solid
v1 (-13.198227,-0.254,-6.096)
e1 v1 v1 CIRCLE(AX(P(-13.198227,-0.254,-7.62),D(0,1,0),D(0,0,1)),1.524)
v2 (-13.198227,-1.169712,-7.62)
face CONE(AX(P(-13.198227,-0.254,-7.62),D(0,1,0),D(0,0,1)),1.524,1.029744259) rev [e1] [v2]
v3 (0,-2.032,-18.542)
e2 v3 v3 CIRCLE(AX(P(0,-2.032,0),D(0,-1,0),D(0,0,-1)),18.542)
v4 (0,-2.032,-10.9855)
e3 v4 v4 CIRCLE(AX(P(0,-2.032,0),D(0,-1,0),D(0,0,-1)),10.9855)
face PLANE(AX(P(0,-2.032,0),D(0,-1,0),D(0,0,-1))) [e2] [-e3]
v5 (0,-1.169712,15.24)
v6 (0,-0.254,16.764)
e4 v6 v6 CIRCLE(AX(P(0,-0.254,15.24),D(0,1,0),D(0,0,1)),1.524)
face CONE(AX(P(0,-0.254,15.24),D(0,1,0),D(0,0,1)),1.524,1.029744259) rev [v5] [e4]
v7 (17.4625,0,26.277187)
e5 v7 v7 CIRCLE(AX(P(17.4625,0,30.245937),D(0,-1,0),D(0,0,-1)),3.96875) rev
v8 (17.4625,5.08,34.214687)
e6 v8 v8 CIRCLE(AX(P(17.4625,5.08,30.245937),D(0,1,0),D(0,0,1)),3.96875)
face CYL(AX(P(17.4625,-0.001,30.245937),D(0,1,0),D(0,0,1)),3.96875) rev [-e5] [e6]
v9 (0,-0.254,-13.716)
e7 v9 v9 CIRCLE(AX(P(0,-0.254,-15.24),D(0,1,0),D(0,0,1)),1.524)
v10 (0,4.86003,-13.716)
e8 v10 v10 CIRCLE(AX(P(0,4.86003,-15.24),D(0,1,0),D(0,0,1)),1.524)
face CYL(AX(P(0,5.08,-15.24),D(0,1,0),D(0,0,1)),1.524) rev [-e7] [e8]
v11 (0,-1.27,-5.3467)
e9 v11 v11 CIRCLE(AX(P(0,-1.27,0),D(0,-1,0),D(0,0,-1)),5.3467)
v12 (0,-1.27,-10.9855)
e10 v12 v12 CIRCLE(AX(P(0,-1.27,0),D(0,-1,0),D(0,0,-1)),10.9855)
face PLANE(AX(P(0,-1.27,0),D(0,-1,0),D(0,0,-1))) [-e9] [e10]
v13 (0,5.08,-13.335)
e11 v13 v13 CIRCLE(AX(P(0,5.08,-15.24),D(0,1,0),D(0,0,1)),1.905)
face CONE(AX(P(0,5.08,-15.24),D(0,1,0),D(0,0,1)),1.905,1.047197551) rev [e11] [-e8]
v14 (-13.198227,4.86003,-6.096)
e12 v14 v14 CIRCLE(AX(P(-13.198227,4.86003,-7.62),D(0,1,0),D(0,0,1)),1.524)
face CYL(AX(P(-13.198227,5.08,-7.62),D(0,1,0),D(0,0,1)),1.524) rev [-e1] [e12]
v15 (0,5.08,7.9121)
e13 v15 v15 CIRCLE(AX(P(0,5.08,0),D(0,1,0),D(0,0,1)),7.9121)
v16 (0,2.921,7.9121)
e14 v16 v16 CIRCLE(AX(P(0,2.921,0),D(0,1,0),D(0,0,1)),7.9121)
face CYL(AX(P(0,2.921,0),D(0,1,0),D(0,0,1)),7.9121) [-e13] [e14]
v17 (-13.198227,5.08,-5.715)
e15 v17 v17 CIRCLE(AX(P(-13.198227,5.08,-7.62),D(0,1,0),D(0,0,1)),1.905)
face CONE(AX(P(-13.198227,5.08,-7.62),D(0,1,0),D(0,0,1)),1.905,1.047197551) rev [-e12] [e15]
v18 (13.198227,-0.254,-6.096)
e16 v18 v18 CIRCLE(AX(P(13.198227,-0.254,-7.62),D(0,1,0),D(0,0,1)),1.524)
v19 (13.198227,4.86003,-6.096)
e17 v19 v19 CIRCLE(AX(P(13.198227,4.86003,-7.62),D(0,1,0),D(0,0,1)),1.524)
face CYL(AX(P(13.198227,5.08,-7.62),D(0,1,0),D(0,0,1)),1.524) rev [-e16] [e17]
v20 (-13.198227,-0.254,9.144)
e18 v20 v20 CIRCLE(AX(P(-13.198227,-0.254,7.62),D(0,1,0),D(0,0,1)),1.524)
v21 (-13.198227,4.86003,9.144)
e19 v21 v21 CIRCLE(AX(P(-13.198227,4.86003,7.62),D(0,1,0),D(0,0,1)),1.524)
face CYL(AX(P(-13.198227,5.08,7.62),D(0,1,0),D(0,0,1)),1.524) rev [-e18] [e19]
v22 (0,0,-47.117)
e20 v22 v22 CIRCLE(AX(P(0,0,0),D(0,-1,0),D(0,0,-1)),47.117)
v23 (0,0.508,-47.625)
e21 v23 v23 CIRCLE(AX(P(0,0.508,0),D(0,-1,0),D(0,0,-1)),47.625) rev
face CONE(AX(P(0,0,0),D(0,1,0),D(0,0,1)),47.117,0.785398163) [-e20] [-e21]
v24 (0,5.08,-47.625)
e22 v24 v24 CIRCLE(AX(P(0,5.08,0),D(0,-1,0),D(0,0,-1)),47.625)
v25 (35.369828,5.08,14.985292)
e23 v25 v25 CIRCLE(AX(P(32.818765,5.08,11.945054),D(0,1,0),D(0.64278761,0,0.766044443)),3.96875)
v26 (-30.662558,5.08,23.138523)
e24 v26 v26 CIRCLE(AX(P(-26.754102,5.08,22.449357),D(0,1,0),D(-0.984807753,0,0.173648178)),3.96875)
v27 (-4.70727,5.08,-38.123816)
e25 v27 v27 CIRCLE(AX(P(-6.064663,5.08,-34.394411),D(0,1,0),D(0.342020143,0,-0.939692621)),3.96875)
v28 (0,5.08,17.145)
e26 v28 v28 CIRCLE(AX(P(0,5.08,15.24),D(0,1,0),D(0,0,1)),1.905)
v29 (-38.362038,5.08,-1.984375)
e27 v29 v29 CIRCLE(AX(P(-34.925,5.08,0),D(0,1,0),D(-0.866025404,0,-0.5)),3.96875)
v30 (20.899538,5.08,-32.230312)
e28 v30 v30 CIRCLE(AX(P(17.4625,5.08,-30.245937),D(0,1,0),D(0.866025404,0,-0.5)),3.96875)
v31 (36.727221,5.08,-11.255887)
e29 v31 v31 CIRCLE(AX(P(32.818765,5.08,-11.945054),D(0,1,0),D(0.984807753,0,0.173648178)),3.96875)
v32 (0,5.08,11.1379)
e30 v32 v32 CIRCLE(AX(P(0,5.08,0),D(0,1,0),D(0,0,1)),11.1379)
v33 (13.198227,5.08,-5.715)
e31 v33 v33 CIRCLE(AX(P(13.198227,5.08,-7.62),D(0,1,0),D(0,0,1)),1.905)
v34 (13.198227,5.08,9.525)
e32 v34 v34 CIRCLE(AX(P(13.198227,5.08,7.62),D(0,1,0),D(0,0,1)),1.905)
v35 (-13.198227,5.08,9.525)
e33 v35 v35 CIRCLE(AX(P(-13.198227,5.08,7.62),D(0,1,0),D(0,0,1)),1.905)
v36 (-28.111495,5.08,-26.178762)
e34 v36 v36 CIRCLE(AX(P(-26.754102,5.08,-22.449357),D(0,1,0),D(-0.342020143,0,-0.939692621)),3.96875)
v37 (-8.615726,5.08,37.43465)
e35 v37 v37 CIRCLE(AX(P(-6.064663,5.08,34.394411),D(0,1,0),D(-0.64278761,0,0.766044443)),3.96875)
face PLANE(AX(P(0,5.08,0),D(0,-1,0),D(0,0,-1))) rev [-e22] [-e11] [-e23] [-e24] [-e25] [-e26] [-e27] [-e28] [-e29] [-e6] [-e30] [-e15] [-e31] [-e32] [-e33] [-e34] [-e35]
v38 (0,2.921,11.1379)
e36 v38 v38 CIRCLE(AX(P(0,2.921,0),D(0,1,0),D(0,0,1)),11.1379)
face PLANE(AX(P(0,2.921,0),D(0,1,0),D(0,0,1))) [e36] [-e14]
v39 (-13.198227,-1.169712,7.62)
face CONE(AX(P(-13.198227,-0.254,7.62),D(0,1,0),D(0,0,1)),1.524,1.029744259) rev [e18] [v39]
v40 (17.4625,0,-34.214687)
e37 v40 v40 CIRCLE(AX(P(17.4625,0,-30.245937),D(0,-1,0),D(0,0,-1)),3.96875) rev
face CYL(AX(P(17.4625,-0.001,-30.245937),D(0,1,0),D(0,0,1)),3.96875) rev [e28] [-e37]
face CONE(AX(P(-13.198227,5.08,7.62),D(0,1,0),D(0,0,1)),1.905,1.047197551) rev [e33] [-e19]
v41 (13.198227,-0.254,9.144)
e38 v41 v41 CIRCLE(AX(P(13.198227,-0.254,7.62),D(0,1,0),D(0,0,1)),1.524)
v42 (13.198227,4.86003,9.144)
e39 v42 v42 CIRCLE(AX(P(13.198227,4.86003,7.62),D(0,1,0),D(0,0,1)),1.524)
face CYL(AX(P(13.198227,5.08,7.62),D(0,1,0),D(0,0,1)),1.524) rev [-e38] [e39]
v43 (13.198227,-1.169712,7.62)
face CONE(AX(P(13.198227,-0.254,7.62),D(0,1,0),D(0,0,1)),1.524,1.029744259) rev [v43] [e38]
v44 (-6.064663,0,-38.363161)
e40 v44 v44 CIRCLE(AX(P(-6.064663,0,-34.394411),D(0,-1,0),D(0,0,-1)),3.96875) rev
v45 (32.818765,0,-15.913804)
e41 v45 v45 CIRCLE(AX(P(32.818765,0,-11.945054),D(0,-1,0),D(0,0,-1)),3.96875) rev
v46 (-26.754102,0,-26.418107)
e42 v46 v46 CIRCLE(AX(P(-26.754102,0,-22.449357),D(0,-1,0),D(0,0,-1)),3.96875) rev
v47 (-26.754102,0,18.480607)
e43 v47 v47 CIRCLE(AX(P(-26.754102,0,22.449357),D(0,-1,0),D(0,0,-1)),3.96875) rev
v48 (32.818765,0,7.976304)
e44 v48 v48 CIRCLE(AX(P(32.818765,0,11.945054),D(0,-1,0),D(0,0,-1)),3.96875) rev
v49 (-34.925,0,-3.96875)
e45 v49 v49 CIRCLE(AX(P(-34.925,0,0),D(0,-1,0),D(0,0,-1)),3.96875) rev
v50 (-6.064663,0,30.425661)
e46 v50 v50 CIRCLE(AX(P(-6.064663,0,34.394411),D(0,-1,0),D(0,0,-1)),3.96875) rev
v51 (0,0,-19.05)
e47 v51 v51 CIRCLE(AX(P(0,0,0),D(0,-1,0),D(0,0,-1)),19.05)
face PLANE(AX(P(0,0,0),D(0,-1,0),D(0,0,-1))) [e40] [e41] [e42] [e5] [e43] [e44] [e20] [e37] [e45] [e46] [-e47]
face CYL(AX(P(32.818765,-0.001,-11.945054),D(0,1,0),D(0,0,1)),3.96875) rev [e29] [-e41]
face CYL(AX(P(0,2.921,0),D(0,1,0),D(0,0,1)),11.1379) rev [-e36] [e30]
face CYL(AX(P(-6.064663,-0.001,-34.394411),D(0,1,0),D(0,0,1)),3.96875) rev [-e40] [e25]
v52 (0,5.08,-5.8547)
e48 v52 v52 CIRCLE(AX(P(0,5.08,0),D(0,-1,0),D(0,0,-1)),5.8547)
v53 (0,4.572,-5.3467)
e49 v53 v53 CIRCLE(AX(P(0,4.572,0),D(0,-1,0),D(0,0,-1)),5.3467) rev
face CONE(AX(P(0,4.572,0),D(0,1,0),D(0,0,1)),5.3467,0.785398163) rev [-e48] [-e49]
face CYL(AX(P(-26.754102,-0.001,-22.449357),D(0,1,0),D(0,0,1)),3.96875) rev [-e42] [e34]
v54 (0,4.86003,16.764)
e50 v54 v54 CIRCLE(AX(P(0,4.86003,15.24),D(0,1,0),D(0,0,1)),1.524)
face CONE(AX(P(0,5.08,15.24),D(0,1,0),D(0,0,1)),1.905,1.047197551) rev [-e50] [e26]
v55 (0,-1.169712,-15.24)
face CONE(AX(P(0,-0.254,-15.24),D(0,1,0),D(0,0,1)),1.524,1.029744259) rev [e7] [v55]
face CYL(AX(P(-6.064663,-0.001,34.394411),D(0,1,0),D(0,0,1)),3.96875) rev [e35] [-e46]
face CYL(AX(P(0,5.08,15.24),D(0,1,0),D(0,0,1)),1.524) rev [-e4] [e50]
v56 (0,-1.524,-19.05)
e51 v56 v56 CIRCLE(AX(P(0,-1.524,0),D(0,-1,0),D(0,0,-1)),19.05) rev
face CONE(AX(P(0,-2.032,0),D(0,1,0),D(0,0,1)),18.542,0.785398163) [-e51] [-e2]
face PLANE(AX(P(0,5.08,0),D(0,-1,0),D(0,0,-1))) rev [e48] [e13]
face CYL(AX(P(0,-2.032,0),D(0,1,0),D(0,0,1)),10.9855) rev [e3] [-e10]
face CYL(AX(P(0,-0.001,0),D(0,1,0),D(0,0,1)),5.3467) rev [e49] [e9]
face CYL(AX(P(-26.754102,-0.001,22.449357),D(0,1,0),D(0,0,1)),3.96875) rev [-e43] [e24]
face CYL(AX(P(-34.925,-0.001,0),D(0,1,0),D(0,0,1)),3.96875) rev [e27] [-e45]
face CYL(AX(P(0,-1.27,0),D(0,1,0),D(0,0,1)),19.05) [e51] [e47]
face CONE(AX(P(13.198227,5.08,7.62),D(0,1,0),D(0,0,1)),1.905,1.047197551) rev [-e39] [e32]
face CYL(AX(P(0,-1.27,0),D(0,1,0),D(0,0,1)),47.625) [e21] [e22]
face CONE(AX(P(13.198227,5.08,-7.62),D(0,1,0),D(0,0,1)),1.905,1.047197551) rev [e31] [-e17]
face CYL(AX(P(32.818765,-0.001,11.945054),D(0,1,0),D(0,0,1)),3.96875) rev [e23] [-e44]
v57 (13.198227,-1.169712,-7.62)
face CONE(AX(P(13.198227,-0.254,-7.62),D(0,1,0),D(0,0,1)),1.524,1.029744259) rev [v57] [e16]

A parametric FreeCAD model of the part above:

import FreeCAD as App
import Part
import Sketcher
from FreeCAD import Vector
Q = App.Units.Quantity


def edges_at(feature, points):
    """Names of the edges that pass closest to the given points."""
    edges = feature.Shape.Edges
    near = lambda p: min(range(len(edges)), key=lambda i: edges[i].distToShape(Part.Vertex(*p))[0])
    return sorted({f"Edge{near(p) + 1}" for p in points})


def add_polygon(sketch, points):
    """Adds a closed chain of lines whose ends are joined by coincident constraints."""
    first, n = sketch.GeometryCount, len(points)
    for a, b in zip(points, points[1:] + points[:1]):
        sketch.addGeometry(Part.LineSegment(App.Vector(*a, 0), App.Vector(*b, 0)), False)
    for i in range(n):
        sketch.addConstraint(Sketcher.Constraint("Coincident", first + i, 2, first + (i + 1) % n, 1))

doc = App.newDocument("Part")
body = doc.addObject("PartDesign::Body", "Body")

sketch1 = body.newObject("Sketcher::SketchObject", "Sketch")
sketch1.AttachmentSupport = (doc.getObject("XZ_Plane"), [""])
sketch1.MapMode = "FlatFace"
add_polygon(sketch1, [(-64, -64), (-64, 64), (64, 64), (64, -64)])
sketch1.addConstraint([
    Sketcher.Constraint("Vertical", 0),
    Sketcher.Constraint("Horizontal", 1),
    Sketcher.Constraint("Vertical", 2),
    Sketcher.Constraint("Horizontal", 3),
    Sketcher.Constraint("Symmetric", 0, 2, 2, 2, -1, 1),
    Sketcher.Constraint("Equal", 3, 0),
    Sketcher.Constraint("DistanceX", 1, 1, 1, 2, Q("5 in")),
])
pad1 = body.newObject("PartDesign::Pad", "Pad")
pad1.Profile = sketch1
pad1.Length = Q("0.2 in")
pad1.Reversed = True

sketch2 = body.newObject("Sketcher::SketchObject", "Sketch001")
sketch2.AttachmentSupport = (doc.getObject("XZ_Plane"), [""])
sketch2.MapMode = "FlatFace"
sketch2.AttachmentOffset = App.Placement(Vector(0, 0, -0.2 * 25.4), App.Rotation())
sketch2.addGeometry(Part.Circle(Vector(0, 0, 0), Vector(0, 0, 1), 5), False)
sketch2.addConstraint([
    Sketcher.Constraint("Coincident", 0, 3, -1, 1),
    Sketcher.Constraint("Diameter", 0, Q("0.421 in")),
])
pocket1 = body.newObject("PartDesign::Pocket", "Pocket")
pocket1.Profile = sketch2
pocket1.Type = "UpToFirst"
pocket1.Reversed = True

sketch3 = body.newObject("Sketcher::SketchObject", "Sketch002")
sketch3.AttachmentSupport = (doc.getObject("XZ_Plane"), [""])
sketch3.MapMode = "FlatFace"
sketch3.AttachmentOffset = App.Placement(Vector(0, 0, -0.2 * 25.4), App.Rotation())
sketch3.addGeometry([
    Part.Circle(Vector(0, 0, 0), Vector(0, 0, 1), 11),
    Part.Circle(Vector(0, 0, 0), Vector(0, 0, 1), 8),
], False)
sketch3.addConstraint([
    Sketcher.Constraint("Coincident", 0, 3, -1, 1),
    Sketcher.Constraint("Coincident", 1, 3, -1, 1),
    Sketcher.Constraint("Diameter", 0, Q("0.877 in")),
    Sketcher.Constraint("Diameter", 1, Q("0.623 in")),
])
pocket2 = body.newObject("PartDesign::Pocket", "Pocket001")
pocket2.Profile = sketch3
pocket2.Length = Q("0.085 in")
pocket2.Reversed = True

sketch4 = body.newObject("Sketcher::SketchObject", "Sketch003")
sketch4.AttachmentSupport = (doc.getObject("XZ_Plane"), [""])
sketch4.MapMode = "FlatFace"
sketch4.AttachmentOffset = App.Placement(Vector(0, 0, -0.2 * 25.4), App.Rotation())
sketch4.addGeometry(Part.Circle(Vector(17.5, 30.2, 0), Vector(0, 0, 1), 4), False)
sketch4.addConstraint([
    Sketcher.Constraint("Diameter", 0, Q("0.3125 in")),
    Sketcher.Constraint("DistanceX", -1, 1, 0, 3, Q("0.6875 in")),
    Sketcher.Constraint("DistanceY", -1, 1, 0, 3, 30.245937),
])
pocket3 = body.newObject("PartDesign::Pocket", "Pocket002")
pocket3.Profile = sketch4
pocket3.Length = Q("0.2 in")
pocket3.Reversed = True
doc.recompute()

polarpattern = body.newObject("PartDesign::PolarPattern", "PolarPattern")
polarpattern.Originals = [pocket3]
polarpattern.Axis = (doc.getObject("Y_Axis"), [""])
polarpattern.Angle = 360
polarpattern.Occurrences = 9
body.Tip = polarpattern

sketch5 = body.newObject("Sketcher::SketchObject", "Sketch004")
sketch5.AttachmentSupport = (doc.getObject("XZ_Plane"), [""])
sketch5.MapMode = "FlatFace"
sketch5.AttachmentOffset = App.Placement(Vector(0, 0, -0.2 * 25.4), App.Rotation())
sketch5.addGeometry(Part.Circle(Vector(57.1, -57.1, 0), Vector(0, 0, 1), 3.2), False)
sketch5.addConstraint([
    Sketcher.Constraint("Diameter", 0, Q("0.25 in")),
    Sketcher.Constraint("DistanceX", -1, 1, 0, 3, Q("2.25 in")),
    Sketcher.Constraint("DistanceY", 0, 3, -1, 1, Q("2.25 in")),
])
pocket4 = body.newObject("PartDesign::Pocket", "Pocket003")
pocket4.Profile = sketch5
pocket4.Type = "UpToFirst"
pocket4.Reversed = True

sketch6 = body.newObject("Sketcher::SketchObject", "Sketch005")
sketch6.AttachmentSupport = (doc.getObject("XZ_Plane"), [""])
sketch6.MapMode = "FlatFace"
sketch6.AttachmentOffset = App.Placement(Vector(0, 0, -0.2 * 25.4), App.Rotation())
sketch6.addGeometry(Part.Circle(Vector(57.1, 57.1, 0), Vector(0, 0, 1), 3.2), False)
sketch6.addConstraint([
    Sketcher.Constraint("Diameter", 0, Q("0.25 in")),
    Sketcher.Constraint("DistanceX", -1, 1, 0, 3, Q("2.25 in")),
    Sketcher.Constraint("DistanceY", -1, 1, 0, 3, Q("2.25 in")),
])
pocket5 = body.newObject("PartDesign::Pocket", "Pocket004")
pocket5.Profile = sketch6
pocket5.Type = "UpToFirst"
pocket5.Reversed = True

sketch7 = body.newObject("Sketcher::SketchObject", "Sketch006")
sketch7.AttachmentSupport = (doc.getObject("XZ_Plane"), [""])
sketch7.MapMode = "FlatFace"
sketch7.AttachmentOffset = App.Placement(Vector(0, 0, -0.2 * 25.4), App.Rotation())
sketch7.addGeometry(Part.Circle(Vector(-57.1, 57.1, 0), Vector(0, 0, 1), 3.2), False)
sketch7.addConstraint([
    Sketcher.Constraint("Diameter", 0, Q("0.25 in")),
    Sketcher.Constraint("DistanceX", 0, 3, -1, 1, Q("2.25 in")),
    Sketcher.Constraint("DistanceY", -1, 1, 0, 3, Q("2.25 in")),
])
pocket6 = body.newObject("PartDesign::Pocket", "Pocket005")
pocket6.Profile = sketch7
pocket6.Type = "UpToFirst"
pocket6.Reversed = True

sketch8 = body.newObject("Sketcher::SketchObject", "Sketch007")
sketch8.AttachmentSupport = (doc.getObject("XZ_Plane"), [""])
sketch8.MapMode = "FlatFace"
sketch8.AttachmentOffset = App.Placement(Vector(0, 0, -0.2 * 25.4), App.Rotation())
sketch8.addGeometry(Part.Circle(Vector(-57.1, -57.1, 0), Vector(0, 0, 1), 3.2), False)
sketch8.addConstraint([
    Sketcher.Constraint("Diameter", 0, Q("0.25 in")),
    Sketcher.Constraint("DistanceX", 0, 3, -1, 1, Q("2.25 in")),
    Sketcher.Constraint("DistanceY", 0, 3, -1, 1, Q("2.25 in")),
])
pocket7 = body.newObject("PartDesign::Pocket", "Pocket006")
pocket7.Profile = sketch8
pocket7.Type = "UpToFirst"
pocket7.Reversed = True

sketch9 = body.newObject("Sketcher::SketchObject", "Sketch008")
sketch9.AttachmentSupport = (doc.getObject("XZ_Plane"), [""])
sketch9.MapMode = "FlatFace"
sketch9.addGeometry([
    Part.Circle(Vector(0, 0, 0), Vector(0, 0, 1), 19),
    Part.Circle(Vector(0, 0, 0), Vector(0, 0, 1), 5),
], False)
sketch9.addConstraint([
    Sketcher.Constraint("Coincident", 0, 3, -1, 1),
    Sketcher.Constraint("Coincident", 1, 3, -1, 1),
    Sketcher.Constraint("Diameter", 0, Q("1.5 in")),
    Sketcher.Constraint("Diameter", 1, Q("0.421 in")),
])
pad2 = body.newObject("PartDesign::Pad", "Pad001")
pad2.Profile = sketch9
pad2.Length = Q("0.05 in")

sketch10 = body.newObject("Sketcher::SketchObject", "Sketch009")
sketch10.AttachmentSupport = (doc.getObject("XZ_Plane"), [""])
sketch10.MapMode = "FlatFace"
sketch10.AttachmentOffset = App.Placement(Vector(0, 0, -0.2 * 25.4), App.Rotation())
add_polygon(sketch10, [(-84, -85), (-84, 85), (84, 85), (84, -85)])
sketch10.addGeometry(Part.Circle(Vector(0, 0, 0), Vector(0, 0, 1), 48), False)
sketch10.addConstraint([
    Sketcher.Constraint("Vertical", 0),
    Sketcher.Constraint("Horizontal", 1),
    Sketcher.Constraint("Vertical", 2),
    Sketcher.Constraint("Horizontal", 3),
    Sketcher.Constraint("Coincident", 4, 3, -1, 1),
    Sketcher.Constraint("Symmetric", 0, 2, 2, 2, -1, 1),
    Sketcher.Constraint("Diameter", 4, Q("3.75 in")),
    Sketcher.Constraint("DistanceY", 0, 1, 0, 2, 169.874148),
    Sketcher.Constraint("DistanceX", 1, 1, 1, 2, 168.716053),
])
pocket8 = body.newObject("PartDesign::Pocket", "Pocket007")
pocket8.Profile = sketch10
pocket8.Type = "ThroughAll"
pocket8.Midplane = True

sketch11 = body.newObject("Sketcher::SketchObject", "Sketch010")
sketch11.AttachmentSupport = (doc.getObject("YZ_Plane"), [""])
sketch11.MapMode = "FlatFace"
add_polygon(sketch11, [(-1.17, -15.24), (5.08, -15.24), (5.08, -13.34), (4.86, -13.72), (-0.25, -13.72)])
sketch11.addGeometry(Part.LineSegment(Vector(5.08, -15.24, 0), Vector(-1.17, -15.24, 0)), True)
sketch11.addConstraint([
    Sketcher.Constraint("Horizontal", 0),
    Sketcher.Constraint("Vertical", 1),
    Sketcher.Constraint("Horizontal", 3),
    Sketcher.Constraint("Horizontal", 5),
    Sketcher.Constraint("Coincident", 5, 1, 0, 2),
    Sketcher.Constraint("Equal", 0, 5),
    Sketcher.Constraint("Angle", 2, Q("-120 deg")),
    Sketcher.Constraint("Angle", 4, Q("-121 deg")),
    Sketcher.Constraint("DistanceX", -1, 1, 0, 2, Q("0.2 in")),
    Sketcher.Constraint("DistanceY", 0, 2, -1, 1, Q("0.6 in")),
    Sketcher.Constraint("DistanceY", 1, 1, 1, 2, Q("0.075 in")),
    Sketcher.Constraint("DistanceY", 2, 2, -1, 1, Q("0.54 in")),
    Sketcher.Constraint("DistanceX", 3, 2, -1, 1, Q("0.01 in")),
])
groove = body.newObject("PartDesign::Groove", "Groove")
groove.Profile = sketch11
groove.ReferenceAxis = (sketch11, ["Axis0"])
groove.Angle = 360

sketch12 = body.newObject("Sketcher::SketchObject", "Sketch011")
sketch12.AttachmentSupport = (doc.getObject("XZ_Plane"), [""])
sketch12.MapMode = "FlatFace"
sketch12.AttachmentOffset = App.Placement(Vector(0, 0, 0.05 * 25.4), App.Rotation())
sketch12.addGeometry([
    Part.Circle(Vector(0, 0, 0), Vector(0, 0, 1), 19),
    Part.Circle(Vector(0, 0, 0), Vector(0, 0, 1), 11),
], False)
sketch12.addConstraint([
    Sketcher.Constraint("Coincident", 0, 3, -1, 1),
    Sketcher.Constraint("Coincident", 1, 3, -1, 1),
    Sketcher.Constraint("Diameter", 0, Q("1.5 in")),
    Sketcher.Constraint("Diameter", 1, Q("0.865 in")),
])
pad3 = body.newObject("PartDesign::Pad", "Pad002")
pad3.Profile = sketch12
pad3.Length = Q("0.03 in")
doc.recompute()

chamfer = body.newObject("PartDesign::Chamfer", "Chamfer")
chamfer.Base = (pad3, edges_at(pad3, [(-19.05, -2.032, 0), (-5.347, 5.08, 0), (-47.625, 0, 0)]))
chamfer.Size = Q("0.02 in")
doc.recompute()

polarpattern2 = body.newObject("PartDesign::PolarPattern", "PolarPattern001")
polarpattern2.Originals = [groove]
polarpattern2.Axis = (doc.getObject("Y_Axis"), [""])
polarpattern2.Angle = 360
polarpattern2.Occurrences = 6
body.Tip = polarpattern2

doc.recompute()
